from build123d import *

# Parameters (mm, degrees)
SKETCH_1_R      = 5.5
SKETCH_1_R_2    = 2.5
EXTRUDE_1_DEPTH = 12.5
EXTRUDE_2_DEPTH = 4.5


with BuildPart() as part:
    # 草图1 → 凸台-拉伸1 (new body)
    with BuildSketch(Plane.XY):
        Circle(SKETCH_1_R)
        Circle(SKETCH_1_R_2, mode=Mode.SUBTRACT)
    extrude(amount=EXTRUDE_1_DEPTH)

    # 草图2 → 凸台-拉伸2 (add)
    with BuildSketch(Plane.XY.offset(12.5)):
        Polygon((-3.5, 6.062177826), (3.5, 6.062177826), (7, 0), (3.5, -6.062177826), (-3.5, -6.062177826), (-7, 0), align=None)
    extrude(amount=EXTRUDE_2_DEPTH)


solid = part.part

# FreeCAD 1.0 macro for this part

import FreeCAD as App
import Part
import Sketcher

V = App.Vector
Q = App.Units.Quantity

doc = App.newDocument("Part")
body = doc.addObject("PartDesign::Body", "Body")

# Sketch on XY plane
sketch1 = body.newObject("Sketcher::SketchObject", "Sketch")
sketch1.AttachmentSupport = (doc.getObject("XY_Plane"), [""])
sketch1.MapMode = "FlatFace"
sketch1.addGeometry([
    Part.Circle(V(0, 0, 0), V(0, 0, 1), 5.5),
    Part.Circle(V(0, 0, 0), V(0, 0, 1), 2.5),
], False)
sketch1.addConstraint([
    Sketcher.Constraint("Coincident", 0, 3, -1, 1),
    Sketcher.Constraint("Coincident", 1, 3, -1, 1),
    Sketcher.Constraint("Diameter", 0, Q("11 mm")),
    Sketcher.Constraint("Diameter", 1, Q("5 mm")),
])
pad1 = body.newObject("PartDesign::Pad", "Pad")
pad1.Profile = sketch1
pad1.Length = 12.5

# Sketch on XY plane
sketch2 = body.newObject("Sketcher::SketchObject", "Sketch001")
sketch2.AttachmentSupport = (doc.getObject("XY_Plane"), [""])
sketch2.MapMode = "FlatFace"
sketch2.AttachmentOffset = App.Placement(V(0, 0, 12.5), App.Rotation())
sketch2.addGeometry([
    Part.LineSegment(V(3.5, 6.062178, 0), V(-3.5, 6.062178, 0)),  # 0
    Part.LineSegment(V(-3.5, 6.062178, 0), V(-7, 0, 0)),  # 1
    Part.LineSegment(V(-7, 0, 0), V(-3.5, -6.062178, 0)),  # 2
    Part.LineSegment(V(-3.5, -6.062178, 0), V(3.5, -6.062178, 0)),  # 3
    Part.LineSegment(V(3.5, -6.062178, 0), V(7, 0, 0)),  # 4
    Part.LineSegment(V(7, 0, 0), V(3.5, 6.062178, 0)),  # 5
], False)
sketch2.addConstraint([
    Sketcher.Constraint("Coincident", 0, 2, 1, 1),
    Sketcher.Constraint("Coincident", 1, 2, 2, 1),
    Sketcher.Constraint("Coincident", 2, 2, 3, 1),
    Sketcher.Constraint("Coincident", 3, 2, 4, 1),
    Sketcher.Constraint("Coincident", 4, 2, 5, 1),
    Sketcher.Constraint("Coincident", 5, 2, 0, 1),
    Sketcher.Constraint("Horizontal", 0),
    Sketcher.Constraint("Horizontal", 3),
    Sketcher.Constraint("Symmetric", 0, 2, 3, 2, -1, 1),
    Sketcher.Constraint("Symmetric", 1, 2, 4, 2, -1, 1),
    Sketcher.Constraint("PointOnObject", 1, 2, -1),
    Sketcher.Constraint("Parallel", 2, 5),
    Sketcher.Constraint("Vertical", 0, 2, 2, 2),
    Sketcher.Constraint("DistanceX", 0, 2, 0, 1, Q("7 mm")),
    Sketcher.Constraint("Angle", 1, Q("-120 deg")),
    Sketcher.Constraint("Distance", 1, Q("7 mm")),
])
pad2 = body.newObject("PartDesign::Pad", "Pad001")
pad2.Profile = sketch2
pad2.Length = 4.5

doc.recompute()
